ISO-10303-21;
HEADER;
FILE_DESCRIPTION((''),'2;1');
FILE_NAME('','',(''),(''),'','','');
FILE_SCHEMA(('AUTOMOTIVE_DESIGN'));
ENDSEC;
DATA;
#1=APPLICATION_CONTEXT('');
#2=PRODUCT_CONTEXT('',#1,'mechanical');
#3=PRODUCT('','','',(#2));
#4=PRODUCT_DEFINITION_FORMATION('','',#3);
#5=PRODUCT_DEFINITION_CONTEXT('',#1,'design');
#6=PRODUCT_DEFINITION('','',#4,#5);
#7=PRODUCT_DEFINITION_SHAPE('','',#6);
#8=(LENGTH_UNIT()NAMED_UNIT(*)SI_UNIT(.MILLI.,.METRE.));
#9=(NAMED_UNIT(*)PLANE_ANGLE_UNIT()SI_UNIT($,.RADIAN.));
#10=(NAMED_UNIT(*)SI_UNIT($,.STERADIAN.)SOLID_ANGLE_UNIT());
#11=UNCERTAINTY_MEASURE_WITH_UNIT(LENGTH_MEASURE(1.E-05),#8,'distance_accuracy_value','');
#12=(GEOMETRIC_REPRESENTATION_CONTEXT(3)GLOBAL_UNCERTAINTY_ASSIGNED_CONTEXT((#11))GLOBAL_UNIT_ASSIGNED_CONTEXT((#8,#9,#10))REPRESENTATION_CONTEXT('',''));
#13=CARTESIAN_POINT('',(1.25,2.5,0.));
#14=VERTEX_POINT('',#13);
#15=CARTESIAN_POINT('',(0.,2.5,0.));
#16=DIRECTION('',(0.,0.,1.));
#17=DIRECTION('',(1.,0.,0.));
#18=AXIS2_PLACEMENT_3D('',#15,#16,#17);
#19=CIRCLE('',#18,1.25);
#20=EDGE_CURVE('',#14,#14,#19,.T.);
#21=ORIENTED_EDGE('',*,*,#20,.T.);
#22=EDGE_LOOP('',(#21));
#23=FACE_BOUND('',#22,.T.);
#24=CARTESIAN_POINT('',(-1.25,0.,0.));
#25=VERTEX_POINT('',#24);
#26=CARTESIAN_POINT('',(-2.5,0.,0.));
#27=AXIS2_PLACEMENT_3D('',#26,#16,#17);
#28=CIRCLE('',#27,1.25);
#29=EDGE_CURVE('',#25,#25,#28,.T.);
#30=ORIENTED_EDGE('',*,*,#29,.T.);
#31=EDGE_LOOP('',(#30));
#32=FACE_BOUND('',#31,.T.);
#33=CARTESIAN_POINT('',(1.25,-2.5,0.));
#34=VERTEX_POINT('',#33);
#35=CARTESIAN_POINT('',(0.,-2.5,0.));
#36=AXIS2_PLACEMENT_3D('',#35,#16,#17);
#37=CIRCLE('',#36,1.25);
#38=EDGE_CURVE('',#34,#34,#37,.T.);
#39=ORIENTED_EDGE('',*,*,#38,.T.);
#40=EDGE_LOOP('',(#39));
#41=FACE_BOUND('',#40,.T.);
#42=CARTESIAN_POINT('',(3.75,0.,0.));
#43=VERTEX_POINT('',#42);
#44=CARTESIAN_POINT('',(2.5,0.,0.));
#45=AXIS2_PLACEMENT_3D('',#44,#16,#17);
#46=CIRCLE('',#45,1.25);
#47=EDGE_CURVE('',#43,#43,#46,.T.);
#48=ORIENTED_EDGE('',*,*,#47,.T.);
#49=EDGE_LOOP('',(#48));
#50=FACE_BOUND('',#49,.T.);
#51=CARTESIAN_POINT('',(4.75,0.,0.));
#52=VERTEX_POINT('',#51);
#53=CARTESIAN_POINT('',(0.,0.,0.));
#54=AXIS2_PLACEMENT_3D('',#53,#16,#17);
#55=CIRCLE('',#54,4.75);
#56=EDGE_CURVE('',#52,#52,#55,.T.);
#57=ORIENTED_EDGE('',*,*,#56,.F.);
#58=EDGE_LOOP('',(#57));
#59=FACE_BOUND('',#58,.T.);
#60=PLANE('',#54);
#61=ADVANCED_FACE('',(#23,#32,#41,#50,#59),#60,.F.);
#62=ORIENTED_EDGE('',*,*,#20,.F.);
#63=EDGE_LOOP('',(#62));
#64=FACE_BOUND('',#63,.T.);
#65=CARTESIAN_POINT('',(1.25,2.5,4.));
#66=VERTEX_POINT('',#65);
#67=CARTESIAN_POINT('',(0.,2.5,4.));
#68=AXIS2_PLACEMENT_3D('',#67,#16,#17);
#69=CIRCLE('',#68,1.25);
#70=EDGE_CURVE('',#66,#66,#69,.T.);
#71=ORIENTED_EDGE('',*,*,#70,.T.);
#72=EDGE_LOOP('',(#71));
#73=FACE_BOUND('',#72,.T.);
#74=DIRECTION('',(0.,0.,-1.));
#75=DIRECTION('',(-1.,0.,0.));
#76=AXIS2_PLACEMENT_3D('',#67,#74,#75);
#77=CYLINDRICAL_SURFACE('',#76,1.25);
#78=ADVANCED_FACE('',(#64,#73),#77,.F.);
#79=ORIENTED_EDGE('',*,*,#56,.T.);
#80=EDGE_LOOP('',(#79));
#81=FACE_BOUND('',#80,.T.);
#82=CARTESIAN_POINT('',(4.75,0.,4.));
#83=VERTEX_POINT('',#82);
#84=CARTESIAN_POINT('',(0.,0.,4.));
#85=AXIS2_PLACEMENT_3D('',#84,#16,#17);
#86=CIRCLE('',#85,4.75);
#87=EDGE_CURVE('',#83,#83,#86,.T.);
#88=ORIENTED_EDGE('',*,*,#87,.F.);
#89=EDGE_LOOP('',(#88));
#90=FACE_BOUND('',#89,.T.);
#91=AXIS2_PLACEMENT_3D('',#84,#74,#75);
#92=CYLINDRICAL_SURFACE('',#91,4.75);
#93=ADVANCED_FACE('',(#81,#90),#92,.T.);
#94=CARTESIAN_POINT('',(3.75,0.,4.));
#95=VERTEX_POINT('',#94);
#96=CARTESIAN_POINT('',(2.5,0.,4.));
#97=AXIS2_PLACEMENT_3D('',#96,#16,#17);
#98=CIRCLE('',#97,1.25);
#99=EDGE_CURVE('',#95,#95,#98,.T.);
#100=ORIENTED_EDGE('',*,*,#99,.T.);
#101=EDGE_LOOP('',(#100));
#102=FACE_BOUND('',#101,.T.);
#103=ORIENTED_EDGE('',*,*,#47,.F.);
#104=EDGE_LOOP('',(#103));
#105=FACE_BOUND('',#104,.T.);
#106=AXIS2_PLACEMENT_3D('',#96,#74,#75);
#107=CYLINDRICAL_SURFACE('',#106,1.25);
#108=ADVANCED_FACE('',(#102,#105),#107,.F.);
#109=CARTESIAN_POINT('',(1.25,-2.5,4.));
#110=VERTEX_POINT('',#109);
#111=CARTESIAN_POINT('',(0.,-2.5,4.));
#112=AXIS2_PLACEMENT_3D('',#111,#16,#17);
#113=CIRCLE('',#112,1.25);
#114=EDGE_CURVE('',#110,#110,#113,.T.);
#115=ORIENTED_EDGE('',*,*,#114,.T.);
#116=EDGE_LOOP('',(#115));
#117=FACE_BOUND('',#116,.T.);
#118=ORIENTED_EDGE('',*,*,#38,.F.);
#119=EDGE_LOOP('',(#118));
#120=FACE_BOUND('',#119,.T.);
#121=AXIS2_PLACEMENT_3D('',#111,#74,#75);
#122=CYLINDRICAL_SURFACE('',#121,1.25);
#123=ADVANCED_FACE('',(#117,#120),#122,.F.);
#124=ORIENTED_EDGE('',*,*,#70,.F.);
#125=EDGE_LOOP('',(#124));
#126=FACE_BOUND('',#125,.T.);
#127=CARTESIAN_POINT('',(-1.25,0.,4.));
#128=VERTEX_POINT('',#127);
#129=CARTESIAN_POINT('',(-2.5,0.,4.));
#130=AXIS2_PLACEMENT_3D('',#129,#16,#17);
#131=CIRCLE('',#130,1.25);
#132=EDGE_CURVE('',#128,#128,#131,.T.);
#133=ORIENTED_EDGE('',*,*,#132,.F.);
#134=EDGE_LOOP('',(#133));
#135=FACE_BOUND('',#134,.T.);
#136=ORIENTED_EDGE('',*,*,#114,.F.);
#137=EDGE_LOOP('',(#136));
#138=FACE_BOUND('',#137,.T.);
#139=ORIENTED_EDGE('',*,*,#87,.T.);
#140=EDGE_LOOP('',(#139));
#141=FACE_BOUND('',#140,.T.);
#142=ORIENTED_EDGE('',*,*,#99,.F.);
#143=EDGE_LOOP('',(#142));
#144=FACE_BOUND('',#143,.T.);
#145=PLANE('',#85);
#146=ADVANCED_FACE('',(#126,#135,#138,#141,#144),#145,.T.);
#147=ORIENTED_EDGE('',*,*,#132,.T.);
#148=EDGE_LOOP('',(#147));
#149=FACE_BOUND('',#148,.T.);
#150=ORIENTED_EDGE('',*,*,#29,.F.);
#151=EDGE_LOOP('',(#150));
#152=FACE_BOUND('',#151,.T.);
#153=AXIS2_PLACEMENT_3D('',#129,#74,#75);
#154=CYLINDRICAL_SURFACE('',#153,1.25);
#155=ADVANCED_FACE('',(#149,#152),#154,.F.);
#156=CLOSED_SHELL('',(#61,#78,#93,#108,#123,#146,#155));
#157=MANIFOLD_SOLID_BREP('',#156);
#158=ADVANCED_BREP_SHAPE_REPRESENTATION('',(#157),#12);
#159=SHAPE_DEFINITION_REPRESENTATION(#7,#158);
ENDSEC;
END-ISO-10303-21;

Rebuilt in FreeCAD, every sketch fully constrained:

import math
import FreeCAD as App
import Part
import Sketcher
Q = App.Units.Quantity

doc = App.newDocument("Part")
body = doc.addObject("PartDesign::Body", "Body")

# Sketch on XY plane
sketch1 = body.newObject("Sketcher::SketchObject", "Sketch")
sketch1.AttachmentSupport = (doc.getObject("XY_Plane"), [""])
sketch1.MapMode = "FlatFace"
sketch1.addGeometry([
    Part.Circle(App.Vector(0, 0, 0), App.Vector(0, 0, 1), 4.75),  # 0
    Part.ArcOfCircle(Part.Circle(App.Vector(-2.5, 0, 0), App.Vector(0, 0, 1), 1.25), math.radians(76), math.radians(284)),  # 1
    Part.ArcOfCircle(Part.Circle(App.Vector(-2.5, 0, 0), App.Vector(0, 0, 1), 1.25), math.radians(0), math.radians(76)),  # 2
    Part.ArcOfCircle(Part.Circle(App.Vector(-2.5, 0, 0), App.Vector(0, 0, 1), 1.25), math.radians(-76), math.radians(0)),  # 3
    Part.ArcOfCircle(Part.Circle(App.Vector(0, -2.5, 0), App.Vector(0, 0, 1), 1.25), math.radians(166), math.radians(360)),  # 4
    Part.ArcOfCircle(Part.Circle(App.Vector(0, -2.5, 0), App.Vector(0, 0, 1), 1.25), math.radians(14), math.radians(166)),  # 5
    Part.ArcOfCircle(Part.Circle(App.Vector(0, -2.5, 0), App.Vector(0, 0, 1), 1.25), math.radians(0), math.radians(14.48)),  # 6
    Part.ArcOfCircle(Part.Circle(App.Vector(2.5, 0, 0), App.Vector(0, 0, 1), 1.25), math.radians(-104), math.radians(0)),  # 7
    Part.ArcOfCircle(Part.Circle(App.Vector(2.5, 0, 0), App.Vector(0, 0, 1), 1.25), math.radians(104), math.radians(256)),  # 8
    Part.ArcOfCircle(Part.Circle(App.Vector(2.5, 0, 0), App.Vector(0, 0, 1), 1.25), math.radians(0), math.radians(104)),  # 9
    Part.ArcOfCircle(Part.Circle(App.Vector(0, 2.5, 0), App.Vector(0, 0, 1), 1.25), math.radians(-14.48), math.radians(0)),  # 10
    Part.ArcOfCircle(Part.Circle(App.Vector(0, 2.5, 0), App.Vector(0, 0, 1), 1.25), math.radians(-166), math.radians(-14)),  # 11
    Part.ArcOfCircle(Part.Circle(App.Vector(0, 2.5, 0), App.Vector(0, 0, 1), 1.25), math.radians(0), math.radians(194)),  # 12
], False)
sketch1.addConstraint([
    Sketcher.Constraint("Tangent", 1, 1, 2, 2),
    Sketcher.Constraint("Tangent", 2, 1, 3, 2),
    Sketcher.Constraint("Tangent", 3, 1, 1, 2),
    Sketcher.Constraint("Tangent", 4, 1, 5, 2),
    Sketcher.Constraint("Tangent", 5, 1, 6, 2),
    Sketcher.Constraint("Tangent", 6, 1, 4, 2),
    Sketcher.Constraint("Tangent", 7, 1, 8, 2),
    Sketcher.Constraint("Tangent", 8, 1, 9, 2),
    Sketcher.Constraint("Tangent", 9, 1, 7, 2),
    Sketcher.Constraint("Tangent", 10, 1, 11, 2),
    Sketcher.Constraint("Tangent", 11, 1, 12, 2),
    Sketcher.Constraint("Tangent", 12, 1, 10, 2),
    Sketcher.Constraint("Coincident", 0, 3, -1, 1),
    Sketcher.Constraint("Equal", 3, 4),
    Sketcher.Constraint("Equal", 6, 7),
    Sketcher.Constraint("Equal", 9, 10),
    Sketcher.Constraint("Symmetric", 1, 3, 7, 3, -1, 1),
    Sketcher.Constraint("Symmetric", 4, 3, 10, 3, -1, 1),
    Sketcher.Constraint("Symmetric", 4, 1, 5, 1, -2),
    Sketcher.Constraint("Symmetric", 3, 1, 7, 1, -2),
    Sketcher.Constraint("PointOnObject", 2, 1, -1),
    Sketcher.Constraint("PointOnObject", 9, 1, -1),
    Sketcher.Constraint("Horizontal", 5, 3, 6, 1),
    Sketcher.Constraint("Horizontal", 1, 1, 8, 1),
    Sketcher.Constraint("Horizontal", 10, 1, 11, 1),
    Sketcher.Constraint("Horizontal", 11, 3, 12, 1),
    Sketcher.Constraint("Vertical", 1, 1, 3, 1),
    Sketcher.Constraint("Vertical", 5, 1, 10, 1),
    Sketcher.Constraint("Diameter", 0, Q("9.5 mm")),
    Sketcher.Constraint("Radius", 1, Q("1.25 mm")),
    Sketcher.Constraint("DistanceX", 2, 3, 7, 3, Q("5 mm")),
    Sketcher.Constraint("DistanceY", 4, 3, -1, 1, Q("2.5 mm")),
    Sketcher.Constraint("DistanceX", 1, 1, -1, 1, Q("2.1875 mm")),
    Sketcher.Constraint("DistanceY", 4, 1, -1, 1, Q("2.1875 mm")),
])
pad1 = body.newObject("PartDesign::Pad", "Pad")
pad1.Profile = sketch1
pad1.Length = 4

doc.recompute()
